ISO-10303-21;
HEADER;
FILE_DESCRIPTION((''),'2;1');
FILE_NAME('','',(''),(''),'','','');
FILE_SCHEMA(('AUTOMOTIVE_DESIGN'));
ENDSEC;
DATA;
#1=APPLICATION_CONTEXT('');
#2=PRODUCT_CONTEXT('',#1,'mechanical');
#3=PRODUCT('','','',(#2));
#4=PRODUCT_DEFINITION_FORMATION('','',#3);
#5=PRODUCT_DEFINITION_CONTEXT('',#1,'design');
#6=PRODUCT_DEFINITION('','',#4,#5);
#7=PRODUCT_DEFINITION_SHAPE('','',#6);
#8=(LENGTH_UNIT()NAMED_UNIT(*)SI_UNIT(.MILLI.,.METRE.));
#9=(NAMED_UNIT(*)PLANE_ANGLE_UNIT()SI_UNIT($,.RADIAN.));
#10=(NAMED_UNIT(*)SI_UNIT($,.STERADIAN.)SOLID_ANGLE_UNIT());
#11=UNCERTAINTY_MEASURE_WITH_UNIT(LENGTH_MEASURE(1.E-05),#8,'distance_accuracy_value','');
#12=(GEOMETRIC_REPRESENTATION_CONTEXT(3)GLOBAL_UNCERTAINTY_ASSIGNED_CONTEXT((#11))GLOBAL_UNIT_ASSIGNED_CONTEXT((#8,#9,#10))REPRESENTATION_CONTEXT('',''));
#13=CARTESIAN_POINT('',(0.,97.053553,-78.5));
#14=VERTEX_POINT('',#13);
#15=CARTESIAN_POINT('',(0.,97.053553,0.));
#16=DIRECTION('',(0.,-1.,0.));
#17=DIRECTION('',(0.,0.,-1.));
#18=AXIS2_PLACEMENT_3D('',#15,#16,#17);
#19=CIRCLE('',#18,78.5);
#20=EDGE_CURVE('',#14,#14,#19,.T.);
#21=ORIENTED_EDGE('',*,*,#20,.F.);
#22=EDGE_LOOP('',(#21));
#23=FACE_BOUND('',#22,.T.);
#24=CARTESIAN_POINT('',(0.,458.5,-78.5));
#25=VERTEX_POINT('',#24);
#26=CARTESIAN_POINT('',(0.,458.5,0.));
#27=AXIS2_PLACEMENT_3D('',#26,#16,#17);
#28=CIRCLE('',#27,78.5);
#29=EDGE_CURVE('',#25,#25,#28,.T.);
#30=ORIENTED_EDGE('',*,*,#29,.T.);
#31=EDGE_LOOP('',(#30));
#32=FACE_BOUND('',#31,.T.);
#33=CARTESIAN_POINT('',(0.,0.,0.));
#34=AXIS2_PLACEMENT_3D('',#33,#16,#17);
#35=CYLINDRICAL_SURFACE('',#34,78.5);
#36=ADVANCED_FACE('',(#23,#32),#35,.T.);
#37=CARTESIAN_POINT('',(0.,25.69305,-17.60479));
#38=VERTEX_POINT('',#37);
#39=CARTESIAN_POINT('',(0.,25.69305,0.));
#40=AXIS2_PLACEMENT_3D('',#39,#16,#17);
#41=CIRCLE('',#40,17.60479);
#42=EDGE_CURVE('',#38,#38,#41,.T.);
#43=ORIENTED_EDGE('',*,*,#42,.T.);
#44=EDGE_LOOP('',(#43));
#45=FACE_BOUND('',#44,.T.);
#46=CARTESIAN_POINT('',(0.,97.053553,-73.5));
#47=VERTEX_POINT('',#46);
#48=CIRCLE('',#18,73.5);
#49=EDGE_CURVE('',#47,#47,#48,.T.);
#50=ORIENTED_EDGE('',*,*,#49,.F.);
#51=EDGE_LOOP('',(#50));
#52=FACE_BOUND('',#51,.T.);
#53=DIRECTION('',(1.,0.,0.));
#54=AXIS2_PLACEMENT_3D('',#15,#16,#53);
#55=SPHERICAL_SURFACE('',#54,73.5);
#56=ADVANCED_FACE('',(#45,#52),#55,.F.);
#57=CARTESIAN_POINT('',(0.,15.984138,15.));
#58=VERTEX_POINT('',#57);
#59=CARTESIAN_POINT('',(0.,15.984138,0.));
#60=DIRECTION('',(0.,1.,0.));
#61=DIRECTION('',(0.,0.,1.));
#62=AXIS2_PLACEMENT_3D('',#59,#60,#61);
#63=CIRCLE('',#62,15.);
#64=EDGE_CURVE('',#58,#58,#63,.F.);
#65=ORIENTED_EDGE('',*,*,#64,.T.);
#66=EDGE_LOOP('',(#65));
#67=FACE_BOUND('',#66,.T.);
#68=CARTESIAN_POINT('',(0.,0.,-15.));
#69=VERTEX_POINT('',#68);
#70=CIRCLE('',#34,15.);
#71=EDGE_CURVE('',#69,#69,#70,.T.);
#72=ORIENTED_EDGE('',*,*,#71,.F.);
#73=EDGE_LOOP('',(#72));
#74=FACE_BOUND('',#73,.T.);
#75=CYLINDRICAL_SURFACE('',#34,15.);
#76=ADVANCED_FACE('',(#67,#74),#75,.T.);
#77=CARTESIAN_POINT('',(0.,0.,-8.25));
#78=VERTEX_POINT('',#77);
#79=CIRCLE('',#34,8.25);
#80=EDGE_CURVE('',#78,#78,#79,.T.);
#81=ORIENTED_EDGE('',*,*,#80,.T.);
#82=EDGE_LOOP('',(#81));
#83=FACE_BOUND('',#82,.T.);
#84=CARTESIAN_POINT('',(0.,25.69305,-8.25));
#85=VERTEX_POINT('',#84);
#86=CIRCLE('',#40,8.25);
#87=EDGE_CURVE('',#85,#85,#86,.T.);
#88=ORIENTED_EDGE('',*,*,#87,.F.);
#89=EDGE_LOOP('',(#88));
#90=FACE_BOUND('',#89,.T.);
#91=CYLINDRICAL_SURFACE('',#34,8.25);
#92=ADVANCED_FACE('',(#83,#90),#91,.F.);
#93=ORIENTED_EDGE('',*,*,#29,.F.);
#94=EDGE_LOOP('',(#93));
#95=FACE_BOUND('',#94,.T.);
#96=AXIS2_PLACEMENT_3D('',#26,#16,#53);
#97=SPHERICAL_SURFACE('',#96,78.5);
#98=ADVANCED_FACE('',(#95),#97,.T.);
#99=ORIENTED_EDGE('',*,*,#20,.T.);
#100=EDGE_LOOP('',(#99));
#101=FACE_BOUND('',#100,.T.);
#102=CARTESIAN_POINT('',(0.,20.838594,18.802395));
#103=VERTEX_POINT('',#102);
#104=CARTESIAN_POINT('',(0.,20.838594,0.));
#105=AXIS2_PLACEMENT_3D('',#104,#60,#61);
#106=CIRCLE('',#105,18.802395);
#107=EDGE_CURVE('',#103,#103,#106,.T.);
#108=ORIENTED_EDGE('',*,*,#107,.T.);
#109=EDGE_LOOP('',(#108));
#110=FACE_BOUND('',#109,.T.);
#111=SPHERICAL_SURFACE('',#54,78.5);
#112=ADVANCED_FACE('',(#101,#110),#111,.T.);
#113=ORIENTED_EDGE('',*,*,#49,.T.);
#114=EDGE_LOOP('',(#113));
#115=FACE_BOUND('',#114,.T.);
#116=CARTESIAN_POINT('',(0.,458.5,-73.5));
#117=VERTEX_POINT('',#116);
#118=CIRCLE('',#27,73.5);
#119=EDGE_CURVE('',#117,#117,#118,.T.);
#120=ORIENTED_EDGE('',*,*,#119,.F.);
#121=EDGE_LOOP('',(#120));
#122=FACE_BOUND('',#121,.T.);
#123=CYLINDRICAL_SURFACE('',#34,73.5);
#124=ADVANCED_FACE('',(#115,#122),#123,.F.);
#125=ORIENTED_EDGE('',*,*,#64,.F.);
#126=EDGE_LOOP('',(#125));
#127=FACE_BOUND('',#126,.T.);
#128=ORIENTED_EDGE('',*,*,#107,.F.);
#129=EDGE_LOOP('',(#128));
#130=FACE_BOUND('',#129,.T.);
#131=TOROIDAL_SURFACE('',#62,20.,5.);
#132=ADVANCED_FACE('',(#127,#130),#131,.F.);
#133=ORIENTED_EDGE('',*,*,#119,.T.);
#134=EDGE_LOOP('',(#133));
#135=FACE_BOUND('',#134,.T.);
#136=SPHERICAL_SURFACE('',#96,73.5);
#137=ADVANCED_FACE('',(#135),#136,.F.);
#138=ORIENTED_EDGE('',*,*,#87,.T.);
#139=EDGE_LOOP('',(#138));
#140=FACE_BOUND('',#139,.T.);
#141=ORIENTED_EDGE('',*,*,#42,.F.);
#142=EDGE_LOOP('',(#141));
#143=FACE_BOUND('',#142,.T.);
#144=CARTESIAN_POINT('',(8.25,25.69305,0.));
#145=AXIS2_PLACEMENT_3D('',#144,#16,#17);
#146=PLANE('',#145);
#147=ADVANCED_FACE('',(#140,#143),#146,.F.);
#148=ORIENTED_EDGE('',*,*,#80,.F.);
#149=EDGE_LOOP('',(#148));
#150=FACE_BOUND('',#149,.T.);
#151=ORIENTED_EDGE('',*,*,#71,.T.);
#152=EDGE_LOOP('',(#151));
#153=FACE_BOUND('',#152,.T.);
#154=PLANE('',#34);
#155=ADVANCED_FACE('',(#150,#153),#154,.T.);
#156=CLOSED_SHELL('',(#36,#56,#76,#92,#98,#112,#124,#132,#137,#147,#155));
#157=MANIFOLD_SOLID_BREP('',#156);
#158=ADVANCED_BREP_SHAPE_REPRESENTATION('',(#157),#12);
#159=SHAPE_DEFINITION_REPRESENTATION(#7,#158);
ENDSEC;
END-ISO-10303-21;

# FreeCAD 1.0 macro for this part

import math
import FreeCAD as App
import Part
import Sketcher

V = App.Vector


def edges_at(feature, points):
    """Names of the edges that pass closest to the given points."""
    edges = feature.Shape.Edges
    near = lambda p: min(range(len(edges)), key=lambda i: edges[i].distToShape(Part.Vertex(*p))[0])
    return sorted({f"Edge{near(p) + 1}" for p in points})

doc = App.newDocument("Part")
params = doc.addObject("Spreadsheet::Sheet", "Params")
for row, (alias, value) in enumerate([
    ("sketch1_radius", "78.5 mm"),
    ("sketch1_width", "15 mm"),
    ("sketch1_height", "20 mm"),
    ("sketch1_height2", "537 mm"),
    ("revolution_angle", "360 deg"),
    ("sketch2_diameter", "16.5 mm"),
    ("hole_diameter", "16.5 mm"),
    ("hole_depth", "15.0429 mm"),
    ("fillet_radius", "5 mm"),
    ("sketch3_radius", "73.5 mm"),
    ("sketch3_width", "8.25 mm"),
    ("groove_angle", "360 deg"),
], start=1):
    params.set(f"A{row}", alias)
    params.set(f"B{row}", "=" + value)
    params.setAlias(f"B{row}", alias)

body = doc.addObject("PartDesign::Body", "Body")

sketch1 = doc.addObject("Sketcher::SketchObject", "Sketch")
body.addObject(sketch1)
sketch1.AttachmentSupport = (doc.XY_Plane, [""])
sketch1.MapMode = "FlatFace"
sketch1.addGeometry(Part.LineSegment(V(0, 0, 0), V(15, 0, 0)), False)
sketch1.addGeometry(Part.LineSegment(V(15, 0, 0), V(15, 20, 0)), False)
sketch1.addGeometry(Part.ArcOfCircle(Part.Circle(V(0, 97, 0), V(0, 0, 1), 78), math.radians(-79), math.radians(0)), False)
sketch1.addGeometry(Part.LineSegment(V(78, 97, 0), V(78, 458, 0)), False)
sketch1.addGeometry(Part.ArcOfCircle(Part.Circle(V(0, 458, 0), V(0, 0, 1), 78), math.radians(0), math.radians(90)), False)
sketch1.addGeometry(Part.LineSegment(V(0, 537, 0), V(0, 0, 0)), False)
sketch1.addConstraint(Sketcher.Constraint("Coincident", 0, 2, 1, 1))
sketch1.addConstraint(Sketcher.Constraint("Coincident", 1, 2, 2, 1))
sketch1.addConstraint(Sketcher.Constraint("Tangent", 2, 2, 3, 1))
sketch1.addConstraint(Sketcher.Constraint("Tangent", 3, 2, 4, 1))
sketch1.addConstraint(Sketcher.Constraint("Coincident", 4, 2, 5, 1))
sketch1.addConstraint(Sketcher.Constraint("Coincident", 5, 2, 0, 1))
sketch1.addConstraint(Sketcher.Constraint("Horizontal", 0))
sketch1.addConstraint(Sketcher.Constraint("Vertical", 1))
sketch1.addConstraint(Sketcher.Constraint("Vertical", 3))
sketch1.addConstraint(Sketcher.Constraint("Vertical", 5))
sketch1.addConstraint(Sketcher.Constraint("Coincident", 5, 2, -1, 1))
sketch1.addConstraint(Sketcher.Constraint("Equal", 2, 4))
sketch1.addConstraint(Sketcher.Constraint("PointOnObject", 2, 3, -2))
sketch1.addConstraint(Sketcher.Constraint("Radius", 2, 78.5))
sketch1.addConstraint(Sketcher.Constraint("DistanceX", 0, 1, 0, 2, 15.0))
sketch1.addConstraint(Sketcher.Constraint("DistanceY", 1, 1, 1, 2, 20.0))
sketch1.addConstraint(Sketcher.Constraint("DistanceY", 5, 2, 5, 1, 537.0))
sketch1.setExpression("Constraints[13]", "Params.sketch1_radius")
sketch1.setExpression("Constraints[14]", "Params.sketch1_width")
sketch1.setExpression("Constraints[15]", "Params.sketch1_height")
sketch1.setExpression("Constraints[16]", "Params.sketch1_height2")
revolution = doc.addObject("PartDesign::Revolution", "Revolution")
body.addObject(revolution)
revolution.Profile = sketch1
revolution.ReferenceAxis = (sketch1, ["V_Axis"])
revolution.setExpression("Angle", "Params.revolution_angle")

sketch2 = doc.addObject("Sketcher::SketchObject", "Sketch001")
body.addObject(sketch2)
sketch2.AttachmentSupport = (doc.XZ_Plane, [""])
sketch2.MapMode = "FlatFace"
sketch2.addGeometry(Part.Circle(V(0, 0, 0), V(0, 0, 1), 8), False)
sketch2.addConstraint(Sketcher.Constraint("Coincident", 0, 3, -1, 1))
sketch2.addConstraint(Sketcher.Constraint("Diameter", 0, 16.5))
sketch2.setExpression("Constraints[1]", "Params.sketch2_diameter")
doc.recompute()
hole = doc.addObject("PartDesign::Hole", "Hole")
body.addObject(hole)
hole.Profile = sketch2
hole.ThreadType = "None"
hole.setExpression("Diameter", "Params.hole_diameter")
hole.DepthType = "Dimension"
hole.setExpression("Depth", "Params.hole_depth")
hole.DrillPoint = "Angled"
hole.DrillPointAngle = 118
doc.recompute()

fillet = doc.addObject("PartDesign::Fillet", "Fillet")
body.addObject(fillet)
fillet.Base = (hole, edges_at(hole, [(0, 20, 15)]))
fillet.setExpression("Radius", "Params.fillet_radius")

sketch3 = doc.addObject("Sketcher::SketchObject", "Sketch002")
body.addObject(sketch3)
sketch3.AttachmentSupport = (doc.XY_Plane, [""])
sketch3.MapMode = "FlatFace"
sketch3.addGeometry(Part.LineSegment(V(8, 15, 0), V(8, 26, 0)), False)
sketch3.addGeometry(Part.LineSegment(V(8, 26, 0), V(18, 26, 0)), False)
sketch3.addGeometry(Part.ArcOfCircle(Part.Circle(V(0, 97, 0), V(0, 0, 1), 74), math.radians(-76), math.radians(0)), False)
sketch3.addGeometry(Part.LineSegment(V(74, 97, 0), V(74, 458, 0)), False)
sketch3.addGeometry(Part.ArcOfCircle(Part.Circle(V(0, 458, 0), V(0, 0, 1), 74), math.radians(0), math.radians(90)), False)
sketch3.addGeometry(Part.LineSegment(V(0, 532, 0), V(0, 15, 0)), False)
sketch3.addGeometry(Part.LineSegment(V(0, 15, 0), V(8, 15, 0)), False)
sketch3.addConstraint(Sketcher.Constraint("Coincident", 0, 2, 1, 1))
sketch3.addConstraint(Sketcher.Constraint("Coincident", 1, 2, 2, 1))
sketch3.addConstraint(Sketcher.Constraint("Tangent", 2, 2, 3, 1))
sketch3.addConstraint(Sketcher.Constraint("Tangent", 3, 2, 4, 1))
sketch3.addConstraint(Sketcher.Constraint("Coincident", 4, 2, 5, 1))
sketch3.addConstraint(Sketcher.Constraint("Coincident", 5, 2, 6, 1))
sketch3.addConstraint(Sketcher.Constraint("Coincident", 6, 2, 0, 1))
sketch3.addConstraint(Sketcher.Constraint("Vertical", 0))
sketch3.addConstraint(Sketcher.Constraint("Horizontal", 1))
sketch3.addConstraint(Sketcher.Constraint("Vertical", 3))
sketch3.addConstraint(Sketcher.Constraint("Vertical", 5))
sketch3.addConstraint(Sketcher.Constraint("Horizontal", 6))
sketch3.addConstraint(Sketcher.Constraint("Equal", 2, 4))
sketch3.addConstraint(Sketcher.Constraint("PointOnObject", 2, 3, -2))
sketch3.addConstraint(Sketcher.Constraint("PointOnObject", 4, 2, -2))
sketch3.addConstraint(Sketcher.Constraint("Radius", 2, 73.5))
sketch3.addConstraint(Sketcher.Constraint("DistanceY", -1, 1, 4, 2, 532.0))
sketch3.addConstraint(Sketcher.Constraint("DistanceX", 6, 1, 6, 2, 8.25))
sketch3.addConstraint(Sketcher.Constraint("DistanceY", 5, 2, 5, 1, 516.9571))
sketch3.addConstraint(Sketcher.Constraint("DistanceX", 1, 1, 1, 2, 9.35479))
sketch3.addConstraint(Sketcher.Constraint("DistanceY", 0, 1, 0, 2, 10.65015))
sketch3.setExpression("Constraints[15]", "Params.sketch3_radius")
sketch3.setExpression("Constraints[17]", "Params.sketch3_width")
groove = doc.addObject("PartDesign::Groove", "Groove")
body.addObject(groove)
groove.Profile = sketch3
groove.ReferenceAxis = (sketch3, ["V_Axis"])
groove.setExpression("Angle", "Params.groove_angle")

doc.recompute()
